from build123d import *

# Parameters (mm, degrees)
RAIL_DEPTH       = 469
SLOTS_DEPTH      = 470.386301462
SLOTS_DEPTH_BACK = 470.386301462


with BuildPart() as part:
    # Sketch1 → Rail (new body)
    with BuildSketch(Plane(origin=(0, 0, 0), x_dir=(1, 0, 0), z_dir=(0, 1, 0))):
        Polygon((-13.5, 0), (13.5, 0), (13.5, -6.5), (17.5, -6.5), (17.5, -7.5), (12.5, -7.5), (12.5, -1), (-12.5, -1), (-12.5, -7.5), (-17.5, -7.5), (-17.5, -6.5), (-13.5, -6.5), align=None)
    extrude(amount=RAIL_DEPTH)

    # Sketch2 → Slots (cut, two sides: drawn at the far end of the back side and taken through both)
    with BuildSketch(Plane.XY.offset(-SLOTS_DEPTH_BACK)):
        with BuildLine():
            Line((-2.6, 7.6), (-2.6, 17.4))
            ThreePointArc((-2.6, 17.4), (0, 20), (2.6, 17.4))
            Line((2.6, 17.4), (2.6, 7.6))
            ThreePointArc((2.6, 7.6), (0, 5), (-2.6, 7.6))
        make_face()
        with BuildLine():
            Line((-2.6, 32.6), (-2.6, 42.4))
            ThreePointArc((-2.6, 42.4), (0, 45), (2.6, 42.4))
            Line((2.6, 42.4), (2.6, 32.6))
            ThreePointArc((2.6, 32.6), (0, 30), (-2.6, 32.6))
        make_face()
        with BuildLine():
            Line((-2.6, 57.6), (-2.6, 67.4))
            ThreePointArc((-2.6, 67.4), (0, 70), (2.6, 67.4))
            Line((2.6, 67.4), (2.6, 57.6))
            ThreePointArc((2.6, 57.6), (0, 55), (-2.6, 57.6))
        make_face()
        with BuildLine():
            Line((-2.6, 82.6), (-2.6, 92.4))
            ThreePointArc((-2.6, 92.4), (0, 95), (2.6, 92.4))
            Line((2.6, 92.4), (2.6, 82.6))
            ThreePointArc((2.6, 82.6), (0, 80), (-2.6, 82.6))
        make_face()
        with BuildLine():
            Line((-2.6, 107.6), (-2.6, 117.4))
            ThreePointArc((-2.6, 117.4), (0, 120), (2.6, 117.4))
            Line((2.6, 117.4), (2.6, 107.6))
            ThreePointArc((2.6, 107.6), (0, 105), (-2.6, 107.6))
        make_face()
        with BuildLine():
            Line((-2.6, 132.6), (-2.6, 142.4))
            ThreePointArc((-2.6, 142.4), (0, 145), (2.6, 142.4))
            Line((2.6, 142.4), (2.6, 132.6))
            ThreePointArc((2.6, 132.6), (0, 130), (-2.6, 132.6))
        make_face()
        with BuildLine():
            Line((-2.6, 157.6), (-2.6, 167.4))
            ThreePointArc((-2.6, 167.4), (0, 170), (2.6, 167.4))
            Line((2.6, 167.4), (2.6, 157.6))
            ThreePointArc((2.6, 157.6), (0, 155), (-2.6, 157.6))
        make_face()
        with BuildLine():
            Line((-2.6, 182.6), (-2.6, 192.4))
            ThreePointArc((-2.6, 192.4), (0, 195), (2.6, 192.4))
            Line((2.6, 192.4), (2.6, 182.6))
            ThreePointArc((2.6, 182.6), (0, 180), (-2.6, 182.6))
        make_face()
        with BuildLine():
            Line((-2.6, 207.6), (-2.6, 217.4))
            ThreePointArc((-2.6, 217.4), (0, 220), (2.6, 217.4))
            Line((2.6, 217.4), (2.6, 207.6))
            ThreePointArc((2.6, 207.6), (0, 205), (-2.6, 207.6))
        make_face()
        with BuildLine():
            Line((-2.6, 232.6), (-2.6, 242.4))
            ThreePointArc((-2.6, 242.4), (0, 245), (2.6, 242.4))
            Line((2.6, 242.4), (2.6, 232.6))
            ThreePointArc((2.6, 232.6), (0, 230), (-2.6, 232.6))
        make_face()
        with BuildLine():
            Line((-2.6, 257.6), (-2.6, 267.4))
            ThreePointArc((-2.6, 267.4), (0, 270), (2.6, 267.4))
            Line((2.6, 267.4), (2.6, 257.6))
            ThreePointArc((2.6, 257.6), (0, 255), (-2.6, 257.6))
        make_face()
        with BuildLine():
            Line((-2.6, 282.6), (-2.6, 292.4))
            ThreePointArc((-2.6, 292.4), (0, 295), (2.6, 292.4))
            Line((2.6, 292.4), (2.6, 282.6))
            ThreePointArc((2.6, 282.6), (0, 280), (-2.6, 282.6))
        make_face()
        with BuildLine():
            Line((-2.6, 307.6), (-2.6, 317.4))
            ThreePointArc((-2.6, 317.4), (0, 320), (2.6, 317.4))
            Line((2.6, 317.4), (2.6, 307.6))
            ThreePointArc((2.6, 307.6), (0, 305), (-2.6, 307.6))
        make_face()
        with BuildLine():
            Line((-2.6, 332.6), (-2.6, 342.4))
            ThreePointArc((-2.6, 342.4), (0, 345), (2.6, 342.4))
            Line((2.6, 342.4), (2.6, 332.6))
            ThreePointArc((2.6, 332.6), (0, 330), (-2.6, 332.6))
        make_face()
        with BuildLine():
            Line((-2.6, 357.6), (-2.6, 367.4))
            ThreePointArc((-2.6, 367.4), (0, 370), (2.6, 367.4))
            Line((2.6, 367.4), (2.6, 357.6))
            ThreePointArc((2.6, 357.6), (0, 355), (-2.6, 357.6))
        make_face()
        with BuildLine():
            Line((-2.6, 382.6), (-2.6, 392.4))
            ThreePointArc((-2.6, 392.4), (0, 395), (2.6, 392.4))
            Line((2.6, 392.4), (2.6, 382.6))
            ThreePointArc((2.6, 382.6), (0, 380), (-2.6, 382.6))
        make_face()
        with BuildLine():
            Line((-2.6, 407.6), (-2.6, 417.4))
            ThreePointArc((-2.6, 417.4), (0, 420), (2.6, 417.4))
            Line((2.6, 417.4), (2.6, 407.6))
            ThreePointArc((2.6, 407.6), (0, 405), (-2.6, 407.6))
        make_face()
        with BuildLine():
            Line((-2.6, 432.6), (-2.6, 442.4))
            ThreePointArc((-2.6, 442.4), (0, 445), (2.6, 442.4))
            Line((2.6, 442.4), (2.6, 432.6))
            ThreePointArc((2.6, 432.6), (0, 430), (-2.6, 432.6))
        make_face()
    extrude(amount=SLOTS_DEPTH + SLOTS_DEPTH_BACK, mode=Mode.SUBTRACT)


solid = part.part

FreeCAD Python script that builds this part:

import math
import FreeCAD as App
import Part
import Sketcher
from FreeCAD import Vector
Q = App.Units.Quantity


def add_polygon(sketch, points):
    """Adds a closed chain of lines whose ends are joined by coincident constraints."""
    first, n = sketch.GeometryCount, len(points)
    for a, b in zip(points, points[1:] + points[:1]):
        sketch.addGeometry(Part.LineSegment(App.Vector(*a, 0), App.Vector(*b, 0)), False)
    for i in range(n):
        sketch.addConstraint(Sketcher.Constraint("Coincident", first + i, 2, first + (i + 1) % n, 1))

doc = App.newDocument("Part")
body = doc.addObject("PartDesign::Body", "Body")

sketch1 = doc.addObject("Sketcher::SketchObject", "Sketch")
body.addObject(sketch1)
sketch1.AttachmentSupport = (doc.XZ_Plane, [""])
sketch1.MapMode = "FlatFace"
add_polygon(sketch1, [(13.5, 0), (-13.5, 0), (-13.5, 6.5), (-17.5, 6.5), (-17.5, 7.5), (-12.5, 7.5), (-12.5, 1), (12.5, 1), (12.5, 7.5), (17.5, 7.5), (17.5, 6.5), (13.5, 6.5)])
sketch1.addConstraint([
    Sketcher.Constraint("Horizontal", 0),
    Sketcher.Constraint("Vertical", 1),
    Sketcher.Constraint("Horizontal", 2),
    Sketcher.Constraint("Vertical", 3),
    Sketcher.Constraint("Horizontal", 4),
    Sketcher.Constraint("Vertical", 5),
    Sketcher.Constraint("Horizontal", 6),
    Sketcher.Constraint("Vertical", 7),
    Sketcher.Constraint("Horizontal", 8),
    Sketcher.Constraint("Vertical", 9),
    Sketcher.Constraint("Horizontal", 10),
    Sketcher.Constraint("Vertical", 11),
    Sketcher.Constraint("Symmetric", 0, 2, 11, 2, -1, 1),
    Sketcher.Constraint("Symmetric", 4, 2, 7, 2, -2),
    Sketcher.Constraint("Symmetric", 2, 2, 9, 2, -2),
    Sketcher.Constraint("Equal", 1, 5),
    Sketcher.Constraint("DistanceX", 0, 2, 0, 1, Q("27 mm")),
    Sketcher.Constraint("DistanceX", 2, 2, 2, 1, Q("4 mm")),
    Sketcher.Constraint("DistanceX", 4, 1, 4, 2, Q("5 mm")),
    Sketcher.Constraint("DistanceY", 3, 1, 3, 2, Q("1 mm")),
    Sketcher.Constraint("DistanceY", 1, 1, 1, 2, Q("6.5 mm")),
])
pad1 = doc.addObject("PartDesign::Pad", "Pad")
body.addObject(pad1)
pad1.Profile = sketch1
pad1.Length = 469
pad1.Reversed = True

sketch2 = doc.addObject("Sketcher::SketchObject", "Sketch001")
body.addObject(sketch2)
sketch2.AttachmentSupport = (doc.XY_Plane, [""])
sketch2.MapMode = "FlatFace"
sketch2.addGeometry([
    Part.LineSegment(Vector(-2.6, 17.4, 0), Vector(-2.6, 7.6, 0)),
    Part.ArcOfCircle(Part.Circle(Vector(0, 7.6, 0), Vector(0, 0, 1), 2.6), math.radians(180), math.radians(360)),
    Part.LineSegment(Vector(2.6, 7.6, 0), Vector(2.6, 17.4, 0)),
    Part.ArcOfCircle(Part.Circle(Vector(0, 17.4, 0), Vector(0, 0, 1), 2.6), math.radians(0), math.radians(180)),
    Part.LineSegment(Vector(-2.6, 42.4, 0), Vector(-2.6, 32.6, 0)),
    Part.ArcOfCircle(Part.Circle(Vector(0, 32.6, 0), Vector(0, 0, 1), 2.6), math.radians(180), math.radians(360)),
    Part.LineSegment(Vector(2.6, 32.6, 0), Vector(2.6, 42.4, 0)),
    Part.ArcOfCircle(Part.Circle(Vector(0, 42.4, 0), Vector(0, 0, 1), 2.6), math.radians(0), math.radians(180)),
    Part.LineSegment(Vector(-2.6, 67.4, 0), Vector(-2.6, 57.6, 0)),
    Part.ArcOfCircle(Part.Circle(Vector(0, 57.6, 0), Vector(0, 0, 1), 2.6), math.radians(180), math.radians(360)),
    Part.LineSegment(Vector(2.6, 57.6, 0), Vector(2.6, 67.4, 0)),
    Part.ArcOfCircle(Part.Circle(Vector(0, 67.4, 0), Vector(0, 0, 1), 2.6), math.radians(0), math.radians(180)),
    Part.LineSegment(Vector(-2.6, 92.4, 0), Vector(-2.6, 82.6, 0)),
    Part.ArcOfCircle(Part.Circle(Vector(0, 82.6, 0), Vector(0, 0, 1), 2.6), math.radians(180), math.radians(360)),
    Part.LineSegment(Vector(2.6, 82.6, 0), Vector(2.6, 92.4, 0)),
    Part.ArcOfCircle(Part.Circle(Vector(0, 92.4, 0), Vector(0, 0, 1), 2.6), math.radians(0), math.radians(180)),
    Part.LineSegment(Vector(-2.6, 117.4, 0), Vector(-2.6, 107.6, 0)),
    Part.ArcOfCircle(Part.Circle(Vector(0, 107.6, 0), Vector(0, 0, 1), 2.6), math.radians(180), math.radians(360)),
    Part.LineSegment(Vector(2.6, 107.6, 0), Vector(2.6, 117.4, 0)),
    Part.ArcOfCircle(Part.Circle(Vector(0, 117.4, 0), Vector(0, 0, 1), 2.6), math.radians(0), math.radians(180)),
    Part.LineSegment(Vector(-2.6, 142.4, 0), Vector(-2.6, 132.6, 0)),
    Part.ArcOfCircle(Part.Circle(Vector(0, 132.6, 0), Vector(0, 0, 1), 2.6), math.radians(180), math.radians(360)),
    Part.LineSegment(Vector(2.6, 132.6, 0), Vector(2.6, 142.4, 0)),
    Part.ArcOfCircle(Part.Circle(Vector(0, 142.4, 0), Vector(0, 0, 1), 2.6), math.radians(0), math.radians(180)),
    Part.LineSegment(Vector(-2.6, 167.4, 0), Vector(-2.6, 157.6, 0)),
    Part.ArcOfCircle(Part.Circle(Vector(0, 157.6, 0), Vector(0, 0, 1), 2.6), math.radians(180), math.radians(360)),
    Part.LineSegment(Vector(2.6, 157.6, 0), Vector(2.6, 167.4, 0)),
    Part.ArcOfCircle(Part.Circle(Vector(0, 167.4, 0), Vector(0, 0, 1), 2.6), math.radians(0), math.radians(180)),
    Part.LineSegment(Vector(-2.6, 192.4, 0), Vector(-2.6, 182.6, 0)),
    Part.ArcOfCircle(Part.Circle(Vector(0, 182.6, 0), Vector(0, 0, 1), 2.6), math.radians(180), math.radians(360)),
    Part.LineSegment(Vector(2.6, 182.6, 0), Vector(2.6, 192.4, 0)),
    Part.ArcOfCircle(Part.Circle(Vector(0, 192.4, 0), Vector(0, 0, 1), 2.6), math.radians(0), math.radians(180)),
    Part.LineSegment(Vector(-2.6, 217.4, 0), Vector(-2.6, 207.6, 0)),
    Part.ArcOfCircle(Part.Circle(Vector(0, 207.6, 0), Vector(0, 0, 1), 2.6), math.radians(180), math.radians(360)),
    Part.LineSegment(Vector(2.6, 207.6, 0), Vector(2.6, 217.4, 0)),
    Part.ArcOfCircle(Part.Circle(Vector(0, 217.4, 0), Vector(0, 0, 1), 2.6), math.radians(0), math.radians(180)),
    Part.LineSegment(Vector(-2.6, 242.4, 0), Vector(-2.6, 232.6, 0)),
    Part.ArcOfCircle(Part.Circle(Vector(0, 232.6, 0), Vector(0, 0, 1), 2.6), math.radians(180), math.radians(360)),
    Part.LineSegment(Vector(2.6, 232.6, 0), Vector(2.6, 242.4, 0)),
    Part.ArcOfCircle(Part.Circle(Vector(0, 242.4, 0), Vector(0, 0, 1), 2.6), math.radians(0), math.radians(180)),
    Part.LineSegment(Vector(-2.6, 267.4, 0), Vector(-2.6, 257.6, 0)),
    Part.ArcOfCircle(Part.Circle(Vector(0, 257.6, 0), Vector(0, 0, 1), 2.6), math.radians(180), math.radians(360)),
    Part.LineSegment(Vector(2.6, 257.6, 0), Vector(2.6, 267.4, 0)),
    Part.ArcOfCircle(Part.Circle(Vector(0, 267.4, 0), Vector(0, 0, 1), 2.6), math.radians(0), math.radians(180)),
    Part.LineSegment(Vector(-2.6, 292.4, 0), Vector(-2.6, 282.6, 0)),
    Part.ArcOfCircle(Part.Circle(Vector(0, 282.6, 0), Vector(0, 0, 1), 2.6), math.radians(180), math.radians(360)),
    Part.LineSegment(Vector(2.6, 282.6, 0), Vector(2.6, 292.4, 0)),
    Part.ArcOfCircle(Part.Circle(Vector(0, 292.4, 0), Vector(0, 0, 1), 2.6), math.radians(0), math.radians(180)),
    Part.LineSegment(Vector(-2.6, 317.4, 0), Vector(-2.6, 307.6, 0)),
    Part.ArcOfCircle(Part.Circle(Vector(0, 307.6, 0), Vector(0, 0, 1), 2.6), math.radians(180), math.radians(360)),
    Part.LineSegment(Vector(2.6, 307.6, 0), Vector(2.6, 317.4, 0)),
    Part.ArcOfCircle(Part.Circle(Vector(0, 317.4, 0), Vector(0, 0, 1), 2.6), math.radians(0), math.radians(180)),
    Part.LineSegment(Vector(-2.6, 342.4, 0), Vector(-2.6, 332.6, 0)),
    Part.ArcOfCircle(Part.Circle(Vector(0, 332.6, 0), Vector(0, 0, 1), 2.6), math.radians(180), math.radians(360)),
    Part.LineSegment(Vector(2.6, 332.6, 0), Vector(2.6, 342.4, 0)),
    Part.ArcOfCircle(Part.Circle(Vector(0, 342.4, 0), Vector(0, 0, 1), 2.6), math.radians(0), math.radians(180)),
    Part.LineSegment(Vector(-2.6, 367.4, 0), Vector(-2.6, 357.6, 0)),
    Part.ArcOfCircle(Part.Circle(Vector(0, 357.6, 0), Vector(0, 0, 1), 2.6), math.radians(180), math.radians(360)),
    Part.LineSegment(Vector(2.6, 357.6, 0), Vector(2.6, 367.4, 0)),
    Part.ArcOfCircle(Part.Circle(Vector(0, 367.4, 0), Vector(0, 0, 1), 2.6), math.radians(0), math.radians(180)),
    Part.LineSegment(Vector(-2.6, 392.4, 0), Vector(-2.6, 382.6, 0)),
    Part.ArcOfCircle(Part.Circle(Vector(0, 382.6, 0), Vector(0, 0, 1), 2.6), math.radians(180), math.radians(360)),
    Part.LineSegment(Vector(2.6, 382.6, 0), Vector(2.6, 392.4, 0)),
    Part.ArcOfCircle(Part.Circle(Vector(0, 392.4, 0), Vector(0, 0, 1), 2.6), math.radians(0), math.radians(180)),
    Part.LineSegment(Vector(-2.6, 417.4, 0), Vector(-2.6, 407.6, 0)),
    Part.ArcOfCircle(Part.Circle(Vector(0, 407.6, 0), Vector(0, 0, 1), 2.6), math.radians(180), math.radians(360)),
    Part.LineSegment(Vector(2.6, 407.6, 0), Vector(2.6, 417.4, 0)),
    Part.ArcOfCircle(Part.Circle(Vector(0, 417.4, 0), Vector(0, 0, 1), 2.6), math.radians(0), math.radians(180)),
    Part.LineSegment(Vector(-2.6, 442.4, 0), Vector(-2.6, 432.6, 0)),
    Part.ArcOfCircle(Part.Circle(Vector(0, 432.6, 0), Vector(0, 0, 1), 2.6), math.radians(180), math.radians(360)),
    Part.LineSegment(Vector(2.6, 432.6, 0), Vector(2.6, 442.4, 0)),
    Part.ArcOfCircle(Part.Circle(Vector(0, 442.4, 0), Vector(0, 0, 1), 2.6), math.radians(0), math.radians(180)),
], False)
sketch2.addConstraint([
    Sketcher.Constraint("Tangent", 0, 2, 1, 1),
    Sketcher.Constraint("Tangent", 1, 2, 2, 1),
    Sketcher.Constraint("Tangent", 2, 2, 3, 1),
    Sketcher.Constraint("Tangent", 3, 2, 0, 1),
    Sketcher.Constraint("Tangent", 4, 2, 5, 1),
    Sketcher.Constraint("Tangent", 5, 2, 6, 1),
    Sketcher.Constraint("Tangent", 6, 2, 7, 1),
    Sketcher.Constraint("Tangent", 7, 2, 4, 1),
    Sketcher.Constraint("Tangent", 8, 2, 9, 1),
    Sketcher.Constraint("Tangent", 9, 2, 10, 1),
    Sketcher.Constraint("Tangent", 10, 2, 11, 1),
    Sketcher.Constraint("Tangent", 11, 2, 8, 1),
    Sketcher.Constraint("Tangent", 12, 2, 13, 1),
    Sketcher.Constraint("Tangent", 13, 2, 14, 1),
    Sketcher.Constraint("Tangent", 14, 2, 15, 1),
    Sketcher.Constraint("Tangent", 15, 2, 12, 1),
    Sketcher.Constraint("Tangent", 16, 2, 17, 1),
    Sketcher.Constraint("Tangent", 17, 2, 18, 1),
    Sketcher.Constraint("Tangent", 18, 2, 19, 1),
    Sketcher.Constraint("Tangent", 19, 2, 16, 1),
    Sketcher.Constraint("Tangent", 20, 2, 21, 1),
    Sketcher.Constraint("Tangent", 21, 2, 22, 1),
    Sketcher.Constraint("Tangent", 22, 2, 23, 1),
    Sketcher.Constraint("Tangent", 23, 2, 20, 1),
    Sketcher.Constraint("Tangent", 24, 2, 25, 1),
    Sketcher.Constraint("Tangent", 25, 2, 26, 1),
    Sketcher.Constraint("Tangent", 26, 2, 27, 1),
    Sketcher.Constraint("Tangent", 27, 2, 24, 1),
    Sketcher.Constraint("Tangent", 28, 2, 29, 1),
    Sketcher.Constraint("Tangent", 29, 2, 30, 1),
    Sketcher.Constraint("Tangent", 30, 2, 31, 1),
    Sketcher.Constraint("Tangent", 31, 2, 28, 1),
    Sketcher.Constraint("Tangent", 32, 2, 33, 1),
    Sketcher.Constraint("Tangent", 33, 2, 34, 1),
    Sketcher.Constraint("Tangent", 34, 2, 35, 1),
    Sketcher.Constraint("Tangent", 35, 2, 32, 1),
    Sketcher.Constraint("Tangent", 36, 2, 37, 1),
    Sketcher.Constraint("Tangent", 37, 2, 38, 1),
    Sketcher.Constraint("Tangent", 38, 2, 39, 1),
    Sketcher.Constraint("Tangent", 39, 2, 36, 1),
    Sketcher.Constraint("Tangent", 40, 2, 41, 1),
    Sketcher.Constraint("Tangent", 41, 2, 42, 1),
    Sketcher.Constraint("Tangent", 42, 2, 43, 1),
    Sketcher.Constraint("Tangent", 43, 2, 40, 1),
    Sketcher.Constraint("Tangent", 44, 2, 45, 1),
    Sketcher.Constraint("Tangent", 45, 2, 46, 1),
    Sketcher.Constraint("Tangent", 46, 2, 47, 1),
    Sketcher.Constraint("Tangent", 47, 2, 44, 1),
    Sketcher.Constraint("Tangent", 48, 2, 49, 1),
    Sketcher.Constraint("Tangent", 49, 2, 50, 1),
    Sketcher.Constraint("Tangent", 50, 2, 51, 1),
    Sketcher.Constraint("Tangent", 51, 2, 48, 1),
    Sketcher.Constraint("Tangent", 52, 2, 53, 1),
    Sketcher.Constraint("Tangent", 53, 2, 54, 1),
    Sketcher.Constraint("Tangent", 54, 2, 55, 1),
    Sketcher.Constraint("Tangent", 55, 2, 52, 1),
    Sketcher.Constraint("Tangent", 56, 2, 57, 1),
    Sketcher.Constraint("Tangent", 57, 2, 58, 1),
    Sketcher.Constraint("Tangent", 58, 2, 59, 1),
    Sketcher.Constraint("Tangent", 59, 2, 56, 1),
    Sketcher.Constraint("Tangent", 60, 2, 61, 1),
    Sketcher.Constraint("Tangent", 61, 2, 62, 1),
    Sketcher.Constraint("Tangent", 62, 2, 63, 1),
    Sketcher.Constraint("Tangent", 63, 2, 60, 1),
    Sketcher.Constraint("Tangent", 64, 2, 65, 1),
    Sketcher.Constraint("Tangent", 65, 2, 66, 1),
    Sketcher.Constraint("Tangent", 66, 2, 67, 1),
    Sketcher.Constraint("Tangent", 67, 2, 64, 1),
    Sketcher.Constraint("Tangent", 68, 2, 69, 1),
    Sketcher.Constraint("Tangent", 69, 2, 70, 1),
    Sketcher.Constraint("Tangent", 70, 2, 71, 1),
    Sketcher.Constraint("Tangent", 71, 2, 68, 1),
    Sketcher.Constraint("Vertical", 0),
    Sketcher.Constraint("Vertical", 2),
    Sketcher.Constraint("Vertical", 4),
    Sketcher.Constraint("Vertical", 6),
    Sketcher.Constraint("Vertical", 8),
    Sketcher.Constraint("Vertical", 10),
    Sketcher.Constraint("Vertical", 12),
    Sketcher.Constraint("Vertical", 14),
    Sketcher.Constraint("Vertical", 16),
    Sketcher.Constraint("Vertical", 18),
    Sketcher.Constraint("Vertical", 20),
    Sketcher.Constraint("Vertical", 22),
    Sketcher.Constraint("Vertical", 24),
    Sketcher.Constraint("Vertical", 26),
    Sketcher.Constraint("Vertical", 28),
    Sketcher.Constraint("Vertical", 30),
    Sketcher.Constraint("Vertical", 32),
    Sketcher.Constraint("Vertical", 34),
    Sketcher.Constraint("Vertical", 36),
    Sketcher.Constraint("Vertical", 38),
    Sketcher.Constraint("Vertical", 40),
    Sketcher.Constraint("Vertical", 42),
    Sketcher.Constraint("Vertical", 44),
    Sketcher.Constraint("Vertical", 46),
    Sketcher.Constraint("Vertical", 48),
    Sketcher.Constraint("Vertical", 50),
    Sketcher.Constraint("Vertical", 52),
    Sketcher.Constraint("Vertical", 54),
    Sketcher.Constraint("Vertical", 56),
    Sketcher.Constraint("Vertical", 58),
    Sketcher.Constraint("Vertical", 60),
    Sketcher.Constraint("Vertical", 62),
    Sketcher.Constraint("Vertical", 64),
    Sketcher.Constraint("Vertical", 66),
    Sketcher.Constraint("Vertical", 68),
    Sketcher.Constraint("Vertical", 70),
    Sketcher.Constraint("Equal", 3, 5),
    Sketcher.Constraint("Equal", 7, 9),
    Sketcher.Constraint("Equal", 11, 13),
    Sketcher.Constraint("Equal", 15, 17),
    Sketcher.Constraint("Equal", 19, 21),
    Sketcher.Constraint("Equal", 23, 25),
    Sketcher.Constraint("Equal", 27, 29),
    Sketcher.Constraint("Equal", 31, 33),
    Sketcher.Constraint("Equal", 35, 37),
    Sketcher.Constraint("Equal", 39, 41),
    Sketcher.Constraint("Equal", 43, 45),
    Sketcher.Constraint("Equal", 47, 49),
    Sketcher.Constraint("Equal", 51, 53),
    Sketcher.Constraint("Equal", 55, 57),
    Sketcher.Constraint("Equal", 59, 61),
    Sketcher.Constraint("Equal", 63, 65),
    Sketcher.Constraint("Equal", 67, 69),
    Sketcher.Constraint("PointOnObject", 1, 3, -2),
    Sketcher.Constraint("PointOnObject", 5, 3, -2),
    Sketcher.Constraint("PointOnObject", 9, 3, -2),
    Sketcher.Constraint("PointOnObject", 13, 3, -2),
    Sketcher.Constraint("PointOnObject", 17, 3, -2),
    Sketcher.Constraint("PointOnObject", 21, 3, -2),
    Sketcher.Constraint("PointOnObject", 25, 3, -2),
    Sketcher.Constraint("PointOnObject", 29, 3, -2),
    Sketcher.Constraint("PointOnObject", 33, 3, -2),
    Sketcher.Constraint("PointOnObject", 37, 3, -2),
    Sketcher.Constraint("PointOnObject", 41, 3, -2),
    Sketcher.Constraint("PointOnObject", 45, 3, -2),
    Sketcher.Constraint("PointOnObject", 49, 3, -2),
    Sketcher.Constraint("PointOnObject", 53, 3, -2),
    Sketcher.Constraint("PointOnObject", 57, 3, -2),
    Sketcher.Constraint("PointOnObject", 61, 3, -2),
    Sketcher.Constraint("PointOnObject", 65, 3, -2),
    Sketcher.Constraint("PointOnObject", 69, 3, -2),
    Sketcher.Constraint("Equal", 2, 4),
    Sketcher.Constraint("Equal", 6, 8),
    Sketcher.Constraint("Equal", 10, 12),
    Sketcher.Constraint("Equal", 14, 16),
    Sketcher.Constraint("Equal", 18, 20),
    Sketcher.Constraint("Equal", 22, 24),
    Sketcher.Constraint("Equal", 26, 28),
    Sketcher.Constraint("Equal", 30, 32),
    Sketcher.Constraint("Equal", 34, 36),
    Sketcher.Constraint("Equal", 38, 40),
    Sketcher.Constraint("Equal", 42, 44),
    Sketcher.Constraint("Equal", 46, 48),
    Sketcher.Constraint("Equal", 50, 52),
    Sketcher.Constraint("Equal", 54, 56),
    Sketcher.Constraint("Equal", 58, 60),
    Sketcher.Constraint("Equal", 62, 64),
    Sketcher.Constraint("Equal", 66, 68),
    Sketcher.Constraint("Radius", 1, Q("2.6 mm")),
    Sketcher.Constraint("DistanceY", 0, 2, 0, 1, Q("9.8 mm")),
    Sketcher.Constraint("DistanceY", -1, 1, 1, 3, Q("7.6 mm")),
    Sketcher.Constraint("DistanceY", -1, 1, 5, 3, Q("32.6 mm")),
    Sketcher.Constraint("DistanceY", -1, 1, 9, 3, Q("57.6 mm")),
    Sketcher.Constraint("DistanceY", -1, 1, 13, 3, Q("82.6 mm")),
    Sketcher.Constraint("DistanceY", -1, 1, 17, 3, Q("107.6 mm")),
    Sketcher.Constraint("DistanceY", -1, 1, 21, 3, Q("132.6 mm")),
    Sketcher.Constraint("DistanceY", -1, 1, 25, 3, Q("157.6 mm")),
    Sketcher.Constraint("DistanceY", -1, 1, 29, 3, Q("182.6 mm")),
    Sketcher.Constraint("DistanceY", -1, 1, 33, 3, Q("207.6 mm")),
    Sketcher.Constraint("DistanceY", -1, 1, 37, 3, Q("232.6 mm")),
    Sketcher.Constraint("DistanceY", -1, 1, 41, 3, Q("257.6 mm")),
    Sketcher.Constraint("DistanceY", -1, 1, 45, 3, Q("282.6 mm")),
    Sketcher.Constraint("DistanceY", -1, 1, 49, 3, Q("307.6 mm")),
    Sketcher.Constraint("DistanceY", -1, 1, 53, 3, Q("332.6 mm")),
    Sketcher.Constraint("DistanceY", -1, 1, 57, 3, Q("357.6 mm")),
    Sketcher.Constraint("DistanceY", -1, 1, 61, 3, Q("382.6 mm")),
    Sketcher.Constraint("DistanceY", -1, 1, 65, 3, Q("407.6 mm")),
    Sketcher.Constraint("DistanceY", -1, 1, 69, 3, Q("432.6 mm")),
])
pocket1 = doc.addObject("PartDesign::Pocket", "Pocket")
body.addObject(pocket1)
pocket1.Profile = sketch2
pocket1.Type = "ThroughAll"
pocket1.Midplane = True

doc.recompute()
